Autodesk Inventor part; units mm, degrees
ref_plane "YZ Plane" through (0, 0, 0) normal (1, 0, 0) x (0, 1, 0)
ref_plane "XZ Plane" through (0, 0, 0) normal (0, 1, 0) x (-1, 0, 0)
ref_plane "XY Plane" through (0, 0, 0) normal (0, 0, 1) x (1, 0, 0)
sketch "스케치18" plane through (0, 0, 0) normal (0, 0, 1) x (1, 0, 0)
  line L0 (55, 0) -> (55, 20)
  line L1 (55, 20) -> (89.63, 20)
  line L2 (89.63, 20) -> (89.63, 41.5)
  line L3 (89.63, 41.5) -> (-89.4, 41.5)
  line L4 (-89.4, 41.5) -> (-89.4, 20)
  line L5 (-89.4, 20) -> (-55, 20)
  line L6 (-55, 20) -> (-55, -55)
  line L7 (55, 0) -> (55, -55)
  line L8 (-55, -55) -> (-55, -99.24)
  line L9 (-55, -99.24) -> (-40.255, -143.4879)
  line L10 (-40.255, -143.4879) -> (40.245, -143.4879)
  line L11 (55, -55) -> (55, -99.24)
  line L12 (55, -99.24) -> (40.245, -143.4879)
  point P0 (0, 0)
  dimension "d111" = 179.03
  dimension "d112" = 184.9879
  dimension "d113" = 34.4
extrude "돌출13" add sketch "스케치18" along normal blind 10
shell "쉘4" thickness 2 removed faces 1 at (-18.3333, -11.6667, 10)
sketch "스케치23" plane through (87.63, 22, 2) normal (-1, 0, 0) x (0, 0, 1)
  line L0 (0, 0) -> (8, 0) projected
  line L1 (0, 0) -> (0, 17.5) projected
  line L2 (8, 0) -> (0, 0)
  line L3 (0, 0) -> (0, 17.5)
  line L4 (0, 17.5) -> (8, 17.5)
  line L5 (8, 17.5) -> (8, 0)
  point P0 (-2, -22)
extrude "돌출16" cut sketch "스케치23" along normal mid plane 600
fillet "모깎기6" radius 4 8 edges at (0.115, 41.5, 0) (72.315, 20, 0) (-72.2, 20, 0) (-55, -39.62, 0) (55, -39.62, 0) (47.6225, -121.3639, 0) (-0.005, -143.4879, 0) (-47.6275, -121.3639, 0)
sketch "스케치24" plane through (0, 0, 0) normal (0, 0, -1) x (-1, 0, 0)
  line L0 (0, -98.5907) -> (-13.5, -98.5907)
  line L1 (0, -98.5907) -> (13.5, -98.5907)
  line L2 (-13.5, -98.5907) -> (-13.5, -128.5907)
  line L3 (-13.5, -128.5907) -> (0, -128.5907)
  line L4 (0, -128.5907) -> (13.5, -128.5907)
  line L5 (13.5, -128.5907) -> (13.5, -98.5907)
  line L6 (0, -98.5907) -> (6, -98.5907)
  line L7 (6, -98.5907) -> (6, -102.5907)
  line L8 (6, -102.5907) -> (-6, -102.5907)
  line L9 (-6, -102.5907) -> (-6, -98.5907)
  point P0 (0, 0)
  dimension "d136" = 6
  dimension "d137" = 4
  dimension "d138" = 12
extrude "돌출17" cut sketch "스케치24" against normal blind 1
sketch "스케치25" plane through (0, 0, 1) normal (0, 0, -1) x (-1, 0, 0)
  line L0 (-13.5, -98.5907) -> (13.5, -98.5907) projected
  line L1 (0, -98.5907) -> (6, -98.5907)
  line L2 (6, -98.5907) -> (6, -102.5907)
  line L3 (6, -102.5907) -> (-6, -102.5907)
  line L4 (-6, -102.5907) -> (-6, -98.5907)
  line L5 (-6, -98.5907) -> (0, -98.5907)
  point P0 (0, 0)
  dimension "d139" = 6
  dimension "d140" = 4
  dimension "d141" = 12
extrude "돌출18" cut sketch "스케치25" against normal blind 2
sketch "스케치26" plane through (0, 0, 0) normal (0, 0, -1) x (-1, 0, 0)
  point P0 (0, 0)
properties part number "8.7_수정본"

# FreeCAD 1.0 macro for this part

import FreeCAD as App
import Part
import Sketcher
from FreeCAD import Vector
Q = App.Units.Quantity


def edges_at(feature, points):
    """Names of the edges that pass closest to the given points."""
    edges = feature.Shape.Edges
    near = lambda p: min(range(len(edges)), key=lambda i: edges[i].distToShape(Part.Vertex(*p))[0])
    return sorted({f"Edge{near(p) + 1}" for p in points})


def faces_at(feature, points):
    """Names of the faces that lie closest to the given points."""
    faces = feature.Shape.Faces
    near = lambda p: min(range(len(faces)), key=lambda i: faces[i].distToShape(Part.Vertex(*p))[0])
    return sorted({f"Face{near(p) + 1}" for p in points})

doc = App.newDocument("Part")
body = doc.addObject("PartDesign::Body", "Body")

sketch1 = body.newObject("Sketcher::SketchObject", "Sketch")
sketch1.AttachmentSupport = (doc.getObject("XY_Plane"), [""])
sketch1.MapMode = "FlatFace"
sketch1.addGeometry(Part.LineSegment(Vector(55, -99, 0), Vector(55, 20, 0)), False)
sketch1.addGeometry(Part.LineSegment(Vector(55, 20, 0), Vector(90, 20, 0)), False)
sketch1.addGeometry(Part.LineSegment(Vector(90, 20, 0), Vector(90, 42, 0)), False)
sketch1.addGeometry(Part.LineSegment(Vector(90, 42, 0), Vector(-89, 42, 0)), False)
sketch1.addGeometry(Part.LineSegment(Vector(-89, 42, 0), Vector(-89, 20, 0)), False)
sketch1.addGeometry(Part.LineSegment(Vector(-89, 20, 0), Vector(-55, 20, 0)), False)
sketch1.addGeometry(Part.LineSegment(Vector(-55, 20, 0), Vector(-55, -99, 0)), False)
sketch1.addGeometry(Part.LineSegment(Vector(-55, -99, 0), Vector(-40, -143, 0)), False)
sketch1.addGeometry(Part.LineSegment(Vector(-40, -143, 0), Vector(40, -143, 0)), False)
sketch1.addGeometry(Part.LineSegment(Vector(40, -143, 0), Vector(55, -99, 0)), False)
sketch1.addConstraint(Sketcher.Constraint("Coincident", 0, 2, 1, 1))
sketch1.addConstraint(Sketcher.Constraint("Coincident", 1, 2, 2, 1))
sketch1.addConstraint(Sketcher.Constraint("Coincident", 2, 2, 3, 1))
sketch1.addConstraint(Sketcher.Constraint("Coincident", 3, 2, 4, 1))
sketch1.addConstraint(Sketcher.Constraint("Coincident", 4, 2, 5, 1))
sketch1.addConstraint(Sketcher.Constraint("Coincident", 5, 2, 6, 1))
sketch1.addConstraint(Sketcher.Constraint("Coincident", 6, 2, 7, 1))
sketch1.addConstraint(Sketcher.Constraint("Coincident", 7, 2, 8, 1))
sketch1.addConstraint(Sketcher.Constraint("Coincident", 8, 2, 9, 1))
sketch1.addConstraint(Sketcher.Constraint("Coincident", 9, 2, 0, 1))
sketch1.addConstraint(Sketcher.Constraint("Vertical", 0))
sketch1.addConstraint(Sketcher.Constraint("Horizontal", 1))
sketch1.addConstraint(Sketcher.Constraint("Vertical", 2))
sketch1.addConstraint(Sketcher.Constraint("Horizontal", 3))
sketch1.addConstraint(Sketcher.Constraint("Vertical", 4))
sketch1.addConstraint(Sketcher.Constraint("Horizontal", 5))
sketch1.addConstraint(Sketcher.Constraint("Vertical", 6))
sketch1.addConstraint(Sketcher.Constraint("Horizontal", 8))
sketch1.addConstraint(Sketcher.Constraint("Symmetric", 0, 2, 5, 2, -2))
sketch1.addConstraint(Sketcher.Constraint("Horizontal", 6, 2, 9, 2))
sketch1.addConstraint(Sketcher.Constraint("DistanceX", 5, 1, 5, 2, 34.4))
sketch1.addConstraint(Sketcher.Constraint("DistanceX", 3, 2, 3, 1, 179.03))
sketch1.addConstraint(Sketcher.Constraint("DistanceX", 8, 1, 8, 2, 80.5))
sketch1.addConstraint(Sketcher.Constraint("DistanceY", 2, 1, 2, 2, 21.5))
sketch1.addConstraint(Sketcher.Constraint("DistanceX", -1, 1, 0, 2, 55.0))
sketch1.addConstraint(Sketcher.Constraint("DistanceY", -1, 1, 0, 2, 20.0))
sketch1.addConstraint(Sketcher.Constraint("DistanceY", 7, 2, 3, 2, 184.988))
sketch1.addConstraint(Sketcher.Constraint("DistanceY", 0, 1, 0, 2, 119.24))
sketch1.addConstraint(Sketcher.Constraint("Angle", 7, Q("-71.57 deg")))
pad1 = body.newObject("PartDesign::Pad", "Pad")
pad1.Profile = sketch1
pad1.Length = 10
doc.recompute()

thickness = body.newObject("PartDesign::Thickness", "Thickness")
thickness.Base = (pad1, faces_at(pad1, [(-18.333, -11.667, 10)]))
thickness.Value = 2
thickness.Reversed = True
thickness.Join = "Intersection"

sketch2 = body.newObject("Sketcher::SketchObject", "Sketch001")
sketch2.AttachmentSupport = (doc.getObject("YZ_Plane"), [""])
sketch2.MapMode = "FlatFace"
sketch2.AttachmentOffset = App.Placement(Vector(0, 0, 87.63), App.Rotation())
sketch2.addGeometry(Part.LineSegment(Vector(40, 2, 0), Vector(22, 2, 0)), False)
sketch2.addGeometry(Part.LineSegment(Vector(22, 2, 0), Vector(22, 10, 0)), False)
sketch2.addGeometry(Part.LineSegment(Vector(22, 10, 0), Vector(40, 10, 0)), False)
sketch2.addGeometry(Part.LineSegment(Vector(40, 10, 0), Vector(40, 2, 0)), False)
sketch2.addConstraint(Sketcher.Constraint("Coincident", 0, 2, 1, 1))
sketch2.addConstraint(Sketcher.Constraint("Coincident", 1, 2, 2, 1))
sketch2.addConstraint(Sketcher.Constraint("Coincident", 2, 2, 3, 1))
sketch2.addConstraint(Sketcher.Constraint("Coincident", 3, 2, 0, 1))
sketch2.addConstraint(Sketcher.Constraint("Horizontal", 0))
sketch2.addConstraint(Sketcher.Constraint("Vertical", 1))
sketch2.addConstraint(Sketcher.Constraint("Horizontal", 2))
sketch2.addConstraint(Sketcher.Constraint("Vertical", 3))
sketch2.addConstraint(Sketcher.Constraint("DistanceY", 1, 1, 1, 2, 8.0))
sketch2.addConstraint(Sketcher.Constraint("DistanceX", 0, 2, 0, 1, 17.5))
sketch2.addConstraint(Sketcher.Constraint("DistanceX", -1, 1, 0, 2, 22.0))
sketch2.addConstraint(Sketcher.Constraint("DistanceY", -1, 1, 0, 2, 2.0))
pocket1 = body.newObject("PartDesign::Pocket", "Pocket")
pocket1.Profile = sketch2
pocket1.Length = 600
pocket1.Midplane = True
doc.recompute()

fillet = body.newObject("PartDesign::Fillet", "Fillet")
fillet.Base = (pocket1, edges_at(pocket1, [
    (0.115, 41.5, 0),
    (72.315, 20, 0),
    (-72.2, 20, 0),
    (-55, -39.62, 0),
    (55, -39.62, 0),
    (47.623, -121.364, 0),
    (-0.005, -143.488, 0),
    (-47.627, -121.364, 0),
]))
fillet.Radius = 4

sketch3 = body.newObject("Sketcher::SketchObject", "Sketch002")
sketch3.AttachmentSupport = (doc.getObject("XY_Plane"), [""])
sketch3.MapMode = "FlatFace"
sketch3.addGeometry(Part.LineSegment(Vector(14, -99, 0), Vector(14, -129, 0)), False)
sketch3.addGeometry(Part.LineSegment(Vector(14, -129, 0), Vector(-14, -129, 0)), False)
sketch3.addGeometry(Part.LineSegment(Vector(-14, -129, 0), Vector(-14, -99, 0)), False)
sketch3.addGeometry(Part.LineSegment(Vector(-14, -99, 0), Vector(14, -99, 0)), False)
sketch3.addConstraint(Sketcher.Constraint("Coincident", 0, 2, 1, 1))
sketch3.addConstraint(Sketcher.Constraint("Coincident", 1, 2, 2, 1))
sketch3.addConstraint(Sketcher.Constraint("Coincident", 2, 2, 3, 1))
sketch3.addConstraint(Sketcher.Constraint("Coincident", 3, 2, 0, 1))
sketch3.addConstraint(Sketcher.Constraint("Vertical", 0))
sketch3.addConstraint(Sketcher.Constraint("Horizontal", 1))
sketch3.addConstraint(Sketcher.Constraint("Vertical", 2))
sketch3.addConstraint(Sketcher.Constraint("Horizontal", 3))
sketch3.addConstraint(Sketcher.Constraint("DistanceX", 1, 2, 1, 1, 27.0))
sketch3.addConstraint(Sketcher.Constraint("DistanceY", 0, 2, 0, 1, 30.0))
sketch3.addConstraint(Sketcher.Constraint("DistanceX", -1, 1, 0, 2, 13.5))
sketch3.addConstraint(Sketcher.Constraint("DistanceY", 0, 2, -1, 1, 128.5907))
pocket2 = body.newObject("PartDesign::Pocket", "Pocket001")
pocket2.Profile = sketch3
pocket2.Length = 1
pocket2.Reversed = True

sketch4 = body.newObject("Sketcher::SketchObject", "Sketch003")
sketch4.AttachmentSupport = (doc.getObject("XY_Plane"), [""])
sketch4.MapMode = "FlatFace"
sketch4.AttachmentOffset = App.Placement(Vector(0, 0, 1), App.Rotation())
sketch4.addGeometry(Part.LineSegment(Vector(-6, -98.6, 0), Vector(6, -98.6, 0)), False)
sketch4.addGeometry(Part.LineSegment(Vector(6, -98.6, 0), Vector(6, -102.6, 0)), False)
sketch4.addGeometry(Part.LineSegment(Vector(6, -102.6, 0), Vector(-6, -102.6, 0)), False)
sketch4.addGeometry(Part.LineSegment(Vector(-6, -102.6, 0), Vector(-6, -98.6, 0)), False)
sketch4.addConstraint(Sketcher.Constraint("Coincident", 0, 2, 1, 1))
sketch4.addConstraint(Sketcher.Constraint("Coincident", 1, 2, 2, 1))
sketch4.addConstraint(Sketcher.Constraint("Coincident", 2, 2, 3, 1))
sketch4.addConstraint(Sketcher.Constraint("Coincident", 3, 2, 0, 1))
sketch4.addConstraint(Sketcher.Constraint("Horizontal", 0))
sketch4.addConstraint(Sketcher.Constraint("Vertical", 1))
sketch4.addConstraint(Sketcher.Constraint("Horizontal", 2))
sketch4.addConstraint(Sketcher.Constraint("Vertical", 3))
sketch4.addConstraint(Sketcher.Constraint("DistanceX", 0, 1, 0, 2, 12.0))
sketch4.addConstraint(Sketcher.Constraint("DistanceY", 1, 2, 1, 1, 4.0))
sketch4.addConstraint(Sketcher.Constraint("DistanceX", -1, 1, 0, 2, 6.0))
sketch4.addConstraint(Sketcher.Constraint("DistanceY", 0, 2, -1, 1, 98.5907))
pocket3 = body.newObject("PartDesign::Pocket", "Pocket002")
pocket3.Profile = sketch4
pocket3.Length = 2
pocket3.Reversed = True

doc.recompute()
